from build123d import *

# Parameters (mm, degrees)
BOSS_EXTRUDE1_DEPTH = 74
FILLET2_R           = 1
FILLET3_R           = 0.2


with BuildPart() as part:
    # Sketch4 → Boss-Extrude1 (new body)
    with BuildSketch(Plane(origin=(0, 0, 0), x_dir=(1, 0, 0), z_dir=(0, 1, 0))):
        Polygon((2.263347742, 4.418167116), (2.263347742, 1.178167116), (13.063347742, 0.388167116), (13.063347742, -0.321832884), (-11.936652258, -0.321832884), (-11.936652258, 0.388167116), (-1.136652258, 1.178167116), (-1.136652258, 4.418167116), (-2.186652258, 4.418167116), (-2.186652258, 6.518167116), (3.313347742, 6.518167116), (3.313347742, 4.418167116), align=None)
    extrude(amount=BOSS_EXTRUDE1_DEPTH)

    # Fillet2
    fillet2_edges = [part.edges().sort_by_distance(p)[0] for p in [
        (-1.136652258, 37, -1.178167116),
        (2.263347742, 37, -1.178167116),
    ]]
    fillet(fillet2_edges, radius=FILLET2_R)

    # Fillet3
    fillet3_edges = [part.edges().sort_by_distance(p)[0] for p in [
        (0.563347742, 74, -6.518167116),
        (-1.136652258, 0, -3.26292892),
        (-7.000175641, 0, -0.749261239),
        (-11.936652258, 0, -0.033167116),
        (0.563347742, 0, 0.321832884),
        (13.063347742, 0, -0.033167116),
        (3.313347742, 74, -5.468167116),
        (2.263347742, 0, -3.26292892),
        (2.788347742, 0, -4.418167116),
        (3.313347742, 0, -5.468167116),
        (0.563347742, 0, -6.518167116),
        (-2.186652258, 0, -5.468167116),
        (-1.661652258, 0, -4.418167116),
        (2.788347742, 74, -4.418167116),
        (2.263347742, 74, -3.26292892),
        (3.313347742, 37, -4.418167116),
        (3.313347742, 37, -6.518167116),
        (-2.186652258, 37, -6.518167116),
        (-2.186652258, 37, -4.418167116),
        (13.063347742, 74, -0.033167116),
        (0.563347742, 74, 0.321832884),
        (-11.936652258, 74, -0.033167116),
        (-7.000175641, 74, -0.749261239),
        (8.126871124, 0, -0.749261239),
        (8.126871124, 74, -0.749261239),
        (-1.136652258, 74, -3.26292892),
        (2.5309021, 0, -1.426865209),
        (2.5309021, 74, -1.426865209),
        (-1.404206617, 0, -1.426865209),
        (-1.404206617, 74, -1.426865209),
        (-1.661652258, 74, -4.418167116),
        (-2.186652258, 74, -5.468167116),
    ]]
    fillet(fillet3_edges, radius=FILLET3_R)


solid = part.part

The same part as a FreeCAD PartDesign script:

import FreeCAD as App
import Part
import Sketcher
Q = App.Units.Quantity


def edges_at(feature, points):
    """Names of the edges that pass closest to the given points."""
    edges = feature.Shape.Edges
    near = lambda p: min(range(len(edges)), key=lambda i: edges[i].distToShape(Part.Vertex(*p))[0])
    return sorted({f"Edge{near(p) + 1}" for p in points})

doc = App.newDocument("Part")
body = doc.addObject("PartDesign::Body", "Body")

sketch1 = doc.addObject("Sketcher::SketchObject", "Sketch")
body.addObject(sketch1)
sketch1.AttachmentSupport = (doc.XZ_Plane, [""])
sketch1.MapMode = "FlatFace"
sketch1.addGeometry([
    Part.LineSegment(App.Vector(2.263348, -1.178167, 0), App.Vector(2.263348, -4.418167, 0)),
    Part.LineSegment(App.Vector(2.263348, -4.418167, 0), App.Vector(3.313348, -4.418167, 0)),
    Part.LineSegment(App.Vector(3.313348, -4.418167, 0), App.Vector(3.313348, -6.518167, 0)),
    Part.LineSegment(App.Vector(3.313348, -6.518167, 0), App.Vector(-2.186652, -6.518167, 0)),
    Part.LineSegment(App.Vector(-2.186652, -6.518167, 0), App.Vector(-2.186652, -4.418167, 0)),
    Part.LineSegment(App.Vector(-2.186652, -4.418167, 0), App.Vector(-1.136652, -4.418167, 0)),
    Part.LineSegment(App.Vector(-1.136652, -4.418167, 0), App.Vector(-1.136652, -1.178167, 0)),
    Part.LineSegment(App.Vector(-1.136652, -1.178167, 0), App.Vector(-11.936652, -0.388167, 0)),
    Part.LineSegment(App.Vector(-11.936652, -0.388167, 0), App.Vector(-11.936652, 0.321833, 0)),
    Part.LineSegment(App.Vector(-11.936652, 0.321833, 0), App.Vector(13.063348, 0.321833, 0)),
    Part.LineSegment(App.Vector(13.063348, 0.321833, 0), App.Vector(13.063348, -0.388167, 0)),
    Part.LineSegment(App.Vector(13.063348, -0.388167, 0), App.Vector(2.263348, -1.178167, 0)),
], False)
sketch1.addConstraint([
    Sketcher.Constraint("Coincident", 0, 2, 1, 1),
    Sketcher.Constraint("Coincident", 1, 2, 2, 1),
    Sketcher.Constraint("Coincident", 2, 2, 3, 1),
    Sketcher.Constraint("Coincident", 3, 2, 4, 1),
    Sketcher.Constraint("Coincident", 4, 2, 5, 1),
    Sketcher.Constraint("Coincident", 5, 2, 6, 1),
    Sketcher.Constraint("Coincident", 6, 2, 7, 1),
    Sketcher.Constraint("Coincident", 7, 2, 8, 1),
    Sketcher.Constraint("Coincident", 8, 2, 9, 1),
    Sketcher.Constraint("Coincident", 9, 2, 10, 1),
    Sketcher.Constraint("Coincident", 10, 2, 11, 1),
    Sketcher.Constraint("Coincident", 11, 2, 0, 1),
    Sketcher.Constraint("Vertical", 0),
    Sketcher.Constraint("Horizontal", 1),
    Sketcher.Constraint("Vertical", 2),
    Sketcher.Constraint("Horizontal", 3),
    Sketcher.Constraint("Vertical", 4),
    Sketcher.Constraint("Horizontal", 5),
    Sketcher.Constraint("Vertical", 6),
    Sketcher.Constraint("Vertical", 8),
    Sketcher.Constraint("Horizontal", 9),
    Sketcher.Constraint("Vertical", 10),
    Sketcher.Constraint("Horizontal", 1, 2, 4, 2),
    Sketcher.Constraint("Horizontal", 7, 2, 10, 2),
    Sketcher.Constraint("Horizontal", 6, 2, 11, 2),
    Sketcher.Constraint("Equal", 1, 5),
    Sketcher.Constraint("Equal", 7, 11),
    Sketcher.Constraint("DistanceX", 9, 1, 9, 2, Q("25 mm")),
    Sketcher.Constraint("DistanceX", 3, 2, 3, 1, Q("5.5 mm")),
    Sketcher.Constraint("DistanceY", 2, 2, 2, 1, Q("2.1 mm")),
    Sketcher.Constraint("DistanceX", 1, 1, 1, 2, Q("1.05 mm")),
    Sketcher.Constraint("DistanceY", 0, 2, 0, 1, Q("3.24 mm")),
    Sketcher.Constraint("DistanceY", 8, 1, 8, 2, Q("0.71 mm")),
    Sketcher.Constraint("DistanceY", 6, 2, 8, 2, Q("1.5 mm")),
    Sketcher.Constraint("DistanceX", -1, 1, 0, 2, Q("2.263348 mm")),
    Sketcher.Constraint("DistanceY", 0, 2, -1, 1, Q("4.418167 mm")),
])
pad1 = doc.addObject("PartDesign::Pad", "Pad")
body.addObject(pad1)
pad1.Profile = sketch1
pad1.Length = 74
pad1.Reversed = True
doc.recompute()

fillet = doc.addObject("PartDesign::Fillet", "Fillet")
body.addObject(fillet)
fillet.Base = (pad1, edges_at(pad1, [(-1.137, 37, -1.178), (2.263, 37, -1.178)]))
fillet.Radius = 1
doc.recompute()

fillet2 = doc.addObject("PartDesign::Fillet", "Fillet001")
body.addObject(fillet2)
fillet2.Base = (fillet, edges_at(fillet, [
    (0.563, 74, -6.518),
    (-1.137, 0, -3.263),
    (-7, 0, -0.749),
    (-11.937, 0, -0.033),
    (0.563, 0, 0.322),
    (13.063, 0, -0.033),
    (3.313, 74, -5.468),
    (2.263, 0, -3.263),
    (2.788, 0, -4.418),
    (3.313, 0, -5.468),
    (0.563, 0, -6.518),
    (-2.187, 0, -5.468),
    (-1.662, 0, -4.418),
    (2.788, 74, -4.418),
    (2.263, 74, -3.263),
    (3.313, 37, -4.418),
    (3.313, 37, -6.518),
    (-2.187, 37, -6.518),
    (-2.187, 37, -4.418),
    (13.063, 74, -0.033),
    (0.563, 74, 0.322),
    (-11.937, 74, -0.033),
    (-7, 74, -0.749),
    (8.127, 0, -0.749),
    (8.127, 74, -0.749),
    (-1.137, 74, -3.263),
    (2.531, 0, -1.427),
    (2.531, 74, -1.427),
    (-1.404, 0, -1.427),
    (-1.404, 74, -1.427),
    (-1.662, 74, -4.418),
    (-2.187, 74, -5.468),
]))
fillet2.Radius = 0.2

doc.recompute()
